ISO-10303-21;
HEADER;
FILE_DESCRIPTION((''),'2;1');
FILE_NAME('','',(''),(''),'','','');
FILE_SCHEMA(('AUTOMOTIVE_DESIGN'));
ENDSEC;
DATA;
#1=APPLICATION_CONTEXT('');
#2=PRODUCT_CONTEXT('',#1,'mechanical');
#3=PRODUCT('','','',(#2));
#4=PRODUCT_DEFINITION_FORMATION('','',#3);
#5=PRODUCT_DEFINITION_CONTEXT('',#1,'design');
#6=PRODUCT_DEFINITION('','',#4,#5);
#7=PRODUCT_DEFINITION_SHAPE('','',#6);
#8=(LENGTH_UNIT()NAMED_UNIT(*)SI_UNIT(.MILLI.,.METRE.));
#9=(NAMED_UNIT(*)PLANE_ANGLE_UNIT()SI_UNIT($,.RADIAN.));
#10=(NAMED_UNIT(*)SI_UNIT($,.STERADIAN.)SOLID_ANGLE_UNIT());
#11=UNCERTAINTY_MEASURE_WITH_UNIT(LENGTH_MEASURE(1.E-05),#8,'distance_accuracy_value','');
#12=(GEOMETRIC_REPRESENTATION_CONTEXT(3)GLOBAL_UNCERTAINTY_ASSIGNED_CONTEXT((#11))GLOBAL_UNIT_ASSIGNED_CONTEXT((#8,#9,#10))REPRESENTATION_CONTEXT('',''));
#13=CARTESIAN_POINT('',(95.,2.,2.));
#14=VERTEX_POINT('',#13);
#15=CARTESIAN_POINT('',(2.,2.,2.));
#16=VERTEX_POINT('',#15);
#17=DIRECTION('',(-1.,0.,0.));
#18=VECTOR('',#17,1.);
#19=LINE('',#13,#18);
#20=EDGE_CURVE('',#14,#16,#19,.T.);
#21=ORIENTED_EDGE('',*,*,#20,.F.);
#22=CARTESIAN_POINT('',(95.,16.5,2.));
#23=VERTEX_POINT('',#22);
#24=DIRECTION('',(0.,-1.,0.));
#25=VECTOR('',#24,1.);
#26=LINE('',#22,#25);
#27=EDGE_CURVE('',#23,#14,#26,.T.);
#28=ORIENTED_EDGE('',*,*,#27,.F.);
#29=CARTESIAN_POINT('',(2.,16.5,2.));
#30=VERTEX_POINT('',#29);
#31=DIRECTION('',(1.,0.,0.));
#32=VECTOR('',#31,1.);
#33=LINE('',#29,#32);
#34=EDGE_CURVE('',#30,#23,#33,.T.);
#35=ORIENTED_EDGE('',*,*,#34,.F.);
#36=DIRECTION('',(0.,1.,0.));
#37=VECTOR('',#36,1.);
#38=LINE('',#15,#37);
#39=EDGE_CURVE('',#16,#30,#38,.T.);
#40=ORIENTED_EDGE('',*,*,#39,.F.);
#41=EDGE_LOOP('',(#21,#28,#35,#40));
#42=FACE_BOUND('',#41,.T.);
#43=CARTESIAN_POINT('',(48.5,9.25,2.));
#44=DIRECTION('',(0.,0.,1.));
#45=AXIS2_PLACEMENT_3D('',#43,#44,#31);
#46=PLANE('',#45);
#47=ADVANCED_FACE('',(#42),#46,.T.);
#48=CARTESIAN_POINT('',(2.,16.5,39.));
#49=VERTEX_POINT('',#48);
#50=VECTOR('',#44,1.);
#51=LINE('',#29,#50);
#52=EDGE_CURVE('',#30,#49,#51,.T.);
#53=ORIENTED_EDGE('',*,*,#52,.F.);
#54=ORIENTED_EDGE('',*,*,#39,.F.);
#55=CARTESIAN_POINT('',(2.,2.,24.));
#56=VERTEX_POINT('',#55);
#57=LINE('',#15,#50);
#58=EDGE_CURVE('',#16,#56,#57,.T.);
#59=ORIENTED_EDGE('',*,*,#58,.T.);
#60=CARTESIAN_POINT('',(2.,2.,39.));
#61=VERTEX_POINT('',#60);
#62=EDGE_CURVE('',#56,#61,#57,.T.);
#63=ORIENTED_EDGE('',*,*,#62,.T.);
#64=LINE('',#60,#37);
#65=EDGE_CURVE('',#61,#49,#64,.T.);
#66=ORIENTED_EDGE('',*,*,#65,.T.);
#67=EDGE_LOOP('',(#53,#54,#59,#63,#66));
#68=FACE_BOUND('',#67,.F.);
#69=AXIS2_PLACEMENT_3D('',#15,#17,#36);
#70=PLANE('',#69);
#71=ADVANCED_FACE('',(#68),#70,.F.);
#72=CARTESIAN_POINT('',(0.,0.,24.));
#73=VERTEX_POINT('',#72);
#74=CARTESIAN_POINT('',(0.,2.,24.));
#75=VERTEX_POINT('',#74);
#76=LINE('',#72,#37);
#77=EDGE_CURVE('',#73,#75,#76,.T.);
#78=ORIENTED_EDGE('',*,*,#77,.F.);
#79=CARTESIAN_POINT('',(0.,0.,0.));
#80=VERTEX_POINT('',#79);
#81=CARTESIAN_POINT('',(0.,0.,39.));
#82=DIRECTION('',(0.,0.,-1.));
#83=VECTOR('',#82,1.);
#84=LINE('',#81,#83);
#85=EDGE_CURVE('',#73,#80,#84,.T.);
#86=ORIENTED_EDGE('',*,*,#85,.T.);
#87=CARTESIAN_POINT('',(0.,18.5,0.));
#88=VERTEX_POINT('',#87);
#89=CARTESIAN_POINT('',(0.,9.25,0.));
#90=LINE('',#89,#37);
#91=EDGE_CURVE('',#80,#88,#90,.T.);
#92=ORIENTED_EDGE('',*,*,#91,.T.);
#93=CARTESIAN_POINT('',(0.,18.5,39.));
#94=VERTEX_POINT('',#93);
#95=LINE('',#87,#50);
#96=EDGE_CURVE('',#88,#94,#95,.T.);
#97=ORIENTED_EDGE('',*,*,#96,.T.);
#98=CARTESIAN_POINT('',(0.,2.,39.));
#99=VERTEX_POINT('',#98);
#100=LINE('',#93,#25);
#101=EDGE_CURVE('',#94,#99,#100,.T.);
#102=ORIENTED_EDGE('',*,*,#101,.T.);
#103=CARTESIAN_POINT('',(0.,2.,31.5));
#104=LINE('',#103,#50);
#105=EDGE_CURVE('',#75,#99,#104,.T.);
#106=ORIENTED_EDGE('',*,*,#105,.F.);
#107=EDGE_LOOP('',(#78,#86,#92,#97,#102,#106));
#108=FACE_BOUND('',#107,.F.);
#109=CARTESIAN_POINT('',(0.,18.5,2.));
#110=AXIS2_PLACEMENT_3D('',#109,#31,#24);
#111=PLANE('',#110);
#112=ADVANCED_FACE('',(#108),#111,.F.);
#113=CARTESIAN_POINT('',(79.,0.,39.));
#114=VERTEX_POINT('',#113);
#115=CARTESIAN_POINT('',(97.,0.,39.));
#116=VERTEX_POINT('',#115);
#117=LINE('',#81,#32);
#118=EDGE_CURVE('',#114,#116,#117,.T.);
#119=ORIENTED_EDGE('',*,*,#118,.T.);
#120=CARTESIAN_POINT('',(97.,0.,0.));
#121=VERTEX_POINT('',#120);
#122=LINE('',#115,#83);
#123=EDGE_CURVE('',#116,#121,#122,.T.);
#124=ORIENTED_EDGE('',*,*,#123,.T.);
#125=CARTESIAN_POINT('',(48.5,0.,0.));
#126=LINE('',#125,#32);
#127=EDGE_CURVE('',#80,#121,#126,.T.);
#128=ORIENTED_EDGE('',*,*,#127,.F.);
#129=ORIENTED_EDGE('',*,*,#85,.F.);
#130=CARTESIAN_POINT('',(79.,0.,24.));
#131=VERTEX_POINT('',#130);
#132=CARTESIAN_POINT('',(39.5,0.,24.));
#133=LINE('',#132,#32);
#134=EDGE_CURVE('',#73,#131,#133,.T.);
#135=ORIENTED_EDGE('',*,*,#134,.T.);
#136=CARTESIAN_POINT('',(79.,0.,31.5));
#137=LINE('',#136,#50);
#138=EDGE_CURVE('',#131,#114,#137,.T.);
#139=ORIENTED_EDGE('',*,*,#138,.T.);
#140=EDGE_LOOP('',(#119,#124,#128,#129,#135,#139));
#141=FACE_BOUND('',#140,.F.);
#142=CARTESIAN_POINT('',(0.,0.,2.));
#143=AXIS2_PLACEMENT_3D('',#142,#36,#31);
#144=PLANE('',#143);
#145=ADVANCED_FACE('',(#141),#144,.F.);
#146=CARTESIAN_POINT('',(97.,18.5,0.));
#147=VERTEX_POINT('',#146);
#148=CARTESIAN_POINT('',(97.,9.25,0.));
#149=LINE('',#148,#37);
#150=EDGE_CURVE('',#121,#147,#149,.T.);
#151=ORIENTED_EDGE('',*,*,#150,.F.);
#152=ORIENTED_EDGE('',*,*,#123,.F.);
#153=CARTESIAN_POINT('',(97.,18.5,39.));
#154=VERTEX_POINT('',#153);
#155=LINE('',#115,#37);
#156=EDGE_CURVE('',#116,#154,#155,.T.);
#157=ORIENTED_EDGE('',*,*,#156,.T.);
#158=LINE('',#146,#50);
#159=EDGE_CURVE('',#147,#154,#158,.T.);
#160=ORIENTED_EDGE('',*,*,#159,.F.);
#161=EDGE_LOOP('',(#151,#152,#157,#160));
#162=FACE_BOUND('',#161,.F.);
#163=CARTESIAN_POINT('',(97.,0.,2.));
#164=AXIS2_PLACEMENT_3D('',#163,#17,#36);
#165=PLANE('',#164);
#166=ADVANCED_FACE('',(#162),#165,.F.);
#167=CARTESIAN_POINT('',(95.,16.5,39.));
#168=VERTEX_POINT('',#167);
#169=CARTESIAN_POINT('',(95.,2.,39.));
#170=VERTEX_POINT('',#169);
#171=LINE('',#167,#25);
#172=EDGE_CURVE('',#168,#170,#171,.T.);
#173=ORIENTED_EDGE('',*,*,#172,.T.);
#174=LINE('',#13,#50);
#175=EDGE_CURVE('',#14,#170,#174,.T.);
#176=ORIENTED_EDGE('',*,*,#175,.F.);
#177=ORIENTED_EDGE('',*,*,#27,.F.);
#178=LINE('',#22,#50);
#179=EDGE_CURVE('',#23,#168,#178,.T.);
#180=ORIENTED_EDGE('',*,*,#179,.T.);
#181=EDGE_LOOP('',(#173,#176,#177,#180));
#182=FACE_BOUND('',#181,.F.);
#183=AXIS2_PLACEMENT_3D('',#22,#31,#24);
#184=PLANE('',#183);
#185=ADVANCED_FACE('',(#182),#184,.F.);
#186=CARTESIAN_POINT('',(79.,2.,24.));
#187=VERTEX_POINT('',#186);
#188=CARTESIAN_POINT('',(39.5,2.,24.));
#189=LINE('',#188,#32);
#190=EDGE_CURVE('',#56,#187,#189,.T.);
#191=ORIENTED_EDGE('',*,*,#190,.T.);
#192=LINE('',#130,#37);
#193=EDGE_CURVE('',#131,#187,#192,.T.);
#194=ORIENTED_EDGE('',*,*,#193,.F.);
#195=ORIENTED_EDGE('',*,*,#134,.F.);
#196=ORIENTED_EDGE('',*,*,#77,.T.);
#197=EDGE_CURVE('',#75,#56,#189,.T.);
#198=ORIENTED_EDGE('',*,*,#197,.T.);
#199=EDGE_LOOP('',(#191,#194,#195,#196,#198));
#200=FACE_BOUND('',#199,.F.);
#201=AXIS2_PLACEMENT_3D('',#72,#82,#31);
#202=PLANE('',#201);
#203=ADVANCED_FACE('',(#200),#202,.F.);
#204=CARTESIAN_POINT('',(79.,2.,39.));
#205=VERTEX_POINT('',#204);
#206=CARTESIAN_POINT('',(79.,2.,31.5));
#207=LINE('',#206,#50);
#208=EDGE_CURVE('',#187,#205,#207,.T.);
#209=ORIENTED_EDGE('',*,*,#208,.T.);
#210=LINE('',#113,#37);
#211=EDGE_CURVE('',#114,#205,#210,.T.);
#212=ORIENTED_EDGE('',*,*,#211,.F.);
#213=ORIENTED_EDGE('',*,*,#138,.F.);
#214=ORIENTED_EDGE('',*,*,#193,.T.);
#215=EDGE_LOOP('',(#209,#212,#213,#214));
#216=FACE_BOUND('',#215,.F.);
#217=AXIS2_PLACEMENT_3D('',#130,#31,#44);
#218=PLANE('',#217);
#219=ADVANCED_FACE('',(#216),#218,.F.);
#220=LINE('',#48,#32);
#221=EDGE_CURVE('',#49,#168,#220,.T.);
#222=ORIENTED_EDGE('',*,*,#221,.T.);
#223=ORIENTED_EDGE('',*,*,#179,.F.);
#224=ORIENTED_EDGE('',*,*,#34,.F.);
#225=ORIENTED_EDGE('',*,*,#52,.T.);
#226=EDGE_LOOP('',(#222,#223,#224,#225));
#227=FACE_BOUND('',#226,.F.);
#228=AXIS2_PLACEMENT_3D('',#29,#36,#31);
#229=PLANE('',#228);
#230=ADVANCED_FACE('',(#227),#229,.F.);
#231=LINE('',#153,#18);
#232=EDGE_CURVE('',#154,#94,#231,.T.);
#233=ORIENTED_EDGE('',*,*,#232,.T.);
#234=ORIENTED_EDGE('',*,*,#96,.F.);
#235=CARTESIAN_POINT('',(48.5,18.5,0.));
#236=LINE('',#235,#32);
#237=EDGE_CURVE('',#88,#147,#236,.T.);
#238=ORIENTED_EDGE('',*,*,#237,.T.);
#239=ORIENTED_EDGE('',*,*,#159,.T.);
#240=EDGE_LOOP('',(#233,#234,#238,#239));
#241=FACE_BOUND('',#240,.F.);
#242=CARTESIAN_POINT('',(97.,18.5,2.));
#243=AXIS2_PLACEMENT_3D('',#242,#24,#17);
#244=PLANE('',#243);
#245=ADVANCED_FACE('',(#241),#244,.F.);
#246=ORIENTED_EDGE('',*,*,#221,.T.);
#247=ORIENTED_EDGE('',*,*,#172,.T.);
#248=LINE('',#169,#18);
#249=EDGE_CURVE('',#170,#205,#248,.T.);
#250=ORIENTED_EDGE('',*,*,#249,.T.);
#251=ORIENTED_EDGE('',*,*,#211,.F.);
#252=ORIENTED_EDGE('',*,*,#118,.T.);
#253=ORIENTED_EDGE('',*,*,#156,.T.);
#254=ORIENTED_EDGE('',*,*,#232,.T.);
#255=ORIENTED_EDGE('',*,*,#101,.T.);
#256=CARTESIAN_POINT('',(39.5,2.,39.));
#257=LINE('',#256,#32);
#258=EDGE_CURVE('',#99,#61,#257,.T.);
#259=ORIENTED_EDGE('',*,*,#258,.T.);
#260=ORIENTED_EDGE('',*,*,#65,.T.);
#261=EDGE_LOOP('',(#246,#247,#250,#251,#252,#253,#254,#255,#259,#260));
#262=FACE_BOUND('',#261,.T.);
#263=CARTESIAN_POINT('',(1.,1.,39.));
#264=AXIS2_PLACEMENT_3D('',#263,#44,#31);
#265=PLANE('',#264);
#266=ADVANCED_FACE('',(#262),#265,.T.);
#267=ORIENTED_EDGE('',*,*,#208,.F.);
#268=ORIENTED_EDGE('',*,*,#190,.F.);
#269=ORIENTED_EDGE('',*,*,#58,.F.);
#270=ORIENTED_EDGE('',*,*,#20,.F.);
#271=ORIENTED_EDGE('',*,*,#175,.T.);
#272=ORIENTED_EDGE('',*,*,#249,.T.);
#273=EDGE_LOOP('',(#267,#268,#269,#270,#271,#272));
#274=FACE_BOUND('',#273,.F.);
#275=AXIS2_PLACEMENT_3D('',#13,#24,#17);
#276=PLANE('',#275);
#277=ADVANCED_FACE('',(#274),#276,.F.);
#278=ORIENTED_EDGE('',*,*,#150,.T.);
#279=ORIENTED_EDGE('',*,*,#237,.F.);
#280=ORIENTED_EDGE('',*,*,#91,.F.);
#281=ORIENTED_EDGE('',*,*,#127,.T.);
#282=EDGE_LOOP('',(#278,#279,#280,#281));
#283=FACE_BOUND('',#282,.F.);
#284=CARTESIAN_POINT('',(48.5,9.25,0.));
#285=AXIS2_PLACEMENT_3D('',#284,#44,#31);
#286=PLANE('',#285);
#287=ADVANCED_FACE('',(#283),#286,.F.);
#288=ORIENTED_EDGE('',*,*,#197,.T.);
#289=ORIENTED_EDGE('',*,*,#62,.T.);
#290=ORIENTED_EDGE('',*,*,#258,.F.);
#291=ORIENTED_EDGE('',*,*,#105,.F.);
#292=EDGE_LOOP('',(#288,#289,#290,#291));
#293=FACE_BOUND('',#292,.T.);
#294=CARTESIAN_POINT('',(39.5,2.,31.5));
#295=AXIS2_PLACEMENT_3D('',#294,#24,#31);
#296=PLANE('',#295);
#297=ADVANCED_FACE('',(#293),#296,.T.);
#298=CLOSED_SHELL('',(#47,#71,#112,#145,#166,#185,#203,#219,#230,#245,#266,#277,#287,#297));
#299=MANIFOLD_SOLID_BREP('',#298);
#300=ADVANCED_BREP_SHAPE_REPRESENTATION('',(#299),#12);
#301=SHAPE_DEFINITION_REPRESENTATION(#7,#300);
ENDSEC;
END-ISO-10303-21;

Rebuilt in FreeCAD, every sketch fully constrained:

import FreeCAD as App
import Part
import Sketcher

V = App.Vector
Q = App.Units.Quantity


def add_polygon(sketch, points):
    """Adds a closed chain of lines whose ends are joined by coincident constraints."""
    first, n = sketch.GeometryCount, len(points)
    for a, b in zip(points, points[1:] + points[:1]):
        sketch.addGeometry(Part.LineSegment(App.Vector(*a, 0), App.Vector(*b, 0)), False)
    for i in range(n):
        sketch.addConstraint(Sketcher.Constraint("Coincident", first + i, 2, first + (i + 1) % n, 1))

doc = App.newDocument("Part")
body = doc.addObject("PartDesign::Body", "Body")

# Sketch on XY plane
sketch1 = body.newObject("Sketcher::SketchObject", "Sketch")
sketch1.AttachmentSupport = (doc.getObject("XY_Plane"), [""])
sketch1.MapMode = "FlatFace"
add_polygon(sketch1, [(0, 18), (0, 0), (97, 0), (97, 18)])  # lines 0-3
sketch1.addConstraint([
    Sketcher.Constraint("Vertical", 0),
    Sketcher.Constraint("Horizontal", 1),
    Sketcher.Constraint("Vertical", 2),
    Sketcher.Constraint("Horizontal", 3),
    Sketcher.Constraint("Coincident", 0, 2, -1, 1),
    Sketcher.Constraint("DistanceX", 1, 1, 1, 2, Q("97 mm")),
    Sketcher.Constraint("DistanceY", 0, 2, 0, 1, Q("18.5 mm")),
])
pad1 = body.newObject("PartDesign::Pad", "Pad")
pad1.Profile = sketch1
pad1.Length = 2

# Sketch on XY plane
sketch2 = body.newObject("Sketcher::SketchObject", "Sketch001")
sketch2.AttachmentSupport = (doc.getObject("XY_Plane"), [""])
sketch2.MapMode = "FlatFace"
sketch2.AttachmentOffset = App.Placement(V(0, 0, 2), App.Rotation())
add_polygon(sketch2, [(97, 0), (97, 18), (0, 18), (0, 0)])  # lines 0-3
add_polygon(sketch2, [(2, 16), (95, 16), (95, 2), (2, 2)])  # lines 4-7
sketch2.addConstraint([
    Sketcher.Constraint("Vertical", 0),
    Sketcher.Constraint("Horizontal", 1),
    Sketcher.Constraint("Vertical", 2),
    Sketcher.Constraint("Horizontal", 3),
    Sketcher.Constraint("Horizontal", 4),
    Sketcher.Constraint("Vertical", 5),
    Sketcher.Constraint("Horizontal", 6),
    Sketcher.Constraint("Vertical", 7),
    Sketcher.Constraint("Coincident", 2, 2, -1, 1),
    Sketcher.Constraint("DistanceX", 1, 2, 1, 1, Q("97 mm")),
    Sketcher.Constraint("DistanceX", 4, 1, 4, 2, Q("93 mm")),
    Sketcher.Constraint("DistanceY", 0, 1, 0, 2, Q("18.5 mm")),
    Sketcher.Constraint("DistanceY", 5, 2, 5, 1, Q("14.5 mm")),
    Sketcher.Constraint("DistanceX", -1, 1, 4, 2, Q("95 mm")),
    Sketcher.Constraint("DistanceY", -1, 1, 5, 2, Q("2 mm")),
])
pad2 = body.newObject("PartDesign::Pad", "Pad001")
pad2.Profile = sketch2
pad2.Length = 37

# Sketch on XZ plane
sketch3 = body.newObject("Sketcher::SketchObject", "Sketch002")
sketch3.AttachmentSupport = (doc.getObject("XZ_Plane"), [""])
sketch3.MapMode = "FlatFace"
add_polygon(sketch3, [(0, 39), (0, 24), (79, 24), (79, 39)])  # lines 0-3
sketch3.addConstraint([
    Sketcher.Constraint("Vertical", 0),
    Sketcher.Constraint("Horizontal", 1),
    Sketcher.Constraint("Vertical", 2),
    Sketcher.Constraint("Horizontal", 3),
    Sketcher.Constraint("PointOnObject", 0, 2, -2),
    Sketcher.Constraint("DistanceX", 1, 1, 1, 2, Q("79 mm")),
    Sketcher.Constraint("DistanceY", 0, 2, 0, 1, Q("15 mm")),
    Sketcher.Constraint("DistanceY", -1, 1, 0, 2, Q("24 mm")),
])
pocket1 = body.newObject("PartDesign::Pocket", "Pocket")
pocket1.Profile = sketch3
pocket1.Length = 2

doc.recompute()
